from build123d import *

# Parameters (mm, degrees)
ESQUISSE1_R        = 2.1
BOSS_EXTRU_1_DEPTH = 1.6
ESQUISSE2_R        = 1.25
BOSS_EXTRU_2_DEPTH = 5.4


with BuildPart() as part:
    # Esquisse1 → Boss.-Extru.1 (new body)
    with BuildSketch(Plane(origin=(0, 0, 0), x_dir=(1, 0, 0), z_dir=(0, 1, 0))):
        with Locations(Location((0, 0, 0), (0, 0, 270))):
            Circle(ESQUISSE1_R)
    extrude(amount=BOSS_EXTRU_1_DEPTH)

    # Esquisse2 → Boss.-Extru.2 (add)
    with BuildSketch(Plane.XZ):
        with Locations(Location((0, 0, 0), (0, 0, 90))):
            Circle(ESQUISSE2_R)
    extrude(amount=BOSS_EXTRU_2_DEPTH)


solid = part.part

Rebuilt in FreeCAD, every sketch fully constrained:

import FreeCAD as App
import Part
import Sketcher

V = App.Vector
Q = App.Units.Quantity

doc = App.newDocument("Part")
body = doc.addObject("PartDesign::Body", "Body")

sketch1 = doc.addObject("Sketcher::SketchObject", "Sketch")
body.addObject(sketch1)
sketch1.AttachmentSupport = (doc.XZ_Plane, [""])
sketch1.MapMode = "FlatFace"
sketch1.addGeometry(Part.Circle(V(0, 0, 0), V(0, 0, 1), 2.1), False)
sketch1.addConstraint([
    Sketcher.Constraint("Coincident", 0, 3, -1, 1),
    Sketcher.Constraint("Diameter", 0, Q("4.2 mm")),
])
pad1 = doc.addObject("PartDesign::Pad", "Pad")
body.addObject(pad1)
pad1.Profile = sketch1
pad1.Length = 1.6
pad1.Reversed = True

sketch2 = doc.addObject("Sketcher::SketchObject", "Sketch001")
body.addObject(sketch2)
sketch2.AttachmentSupport = (doc.XZ_Plane, [""])
sketch2.MapMode = "FlatFace"
sketch2.addGeometry(Part.Circle(V(0, 0, 0), V(0, 0, 1), 1.25), False)
sketch2.addConstraint([
    Sketcher.Constraint("Coincident", 0, 3, -1, 1),
    Sketcher.Constraint("Diameter", 0, Q("2.5 mm")),
])
pad2 = doc.addObject("PartDesign::Pad", "Pad001")
body.addObject(pad2)
pad2.Profile = sketch2
pad2.Length = 5.4

doc.recompute()
